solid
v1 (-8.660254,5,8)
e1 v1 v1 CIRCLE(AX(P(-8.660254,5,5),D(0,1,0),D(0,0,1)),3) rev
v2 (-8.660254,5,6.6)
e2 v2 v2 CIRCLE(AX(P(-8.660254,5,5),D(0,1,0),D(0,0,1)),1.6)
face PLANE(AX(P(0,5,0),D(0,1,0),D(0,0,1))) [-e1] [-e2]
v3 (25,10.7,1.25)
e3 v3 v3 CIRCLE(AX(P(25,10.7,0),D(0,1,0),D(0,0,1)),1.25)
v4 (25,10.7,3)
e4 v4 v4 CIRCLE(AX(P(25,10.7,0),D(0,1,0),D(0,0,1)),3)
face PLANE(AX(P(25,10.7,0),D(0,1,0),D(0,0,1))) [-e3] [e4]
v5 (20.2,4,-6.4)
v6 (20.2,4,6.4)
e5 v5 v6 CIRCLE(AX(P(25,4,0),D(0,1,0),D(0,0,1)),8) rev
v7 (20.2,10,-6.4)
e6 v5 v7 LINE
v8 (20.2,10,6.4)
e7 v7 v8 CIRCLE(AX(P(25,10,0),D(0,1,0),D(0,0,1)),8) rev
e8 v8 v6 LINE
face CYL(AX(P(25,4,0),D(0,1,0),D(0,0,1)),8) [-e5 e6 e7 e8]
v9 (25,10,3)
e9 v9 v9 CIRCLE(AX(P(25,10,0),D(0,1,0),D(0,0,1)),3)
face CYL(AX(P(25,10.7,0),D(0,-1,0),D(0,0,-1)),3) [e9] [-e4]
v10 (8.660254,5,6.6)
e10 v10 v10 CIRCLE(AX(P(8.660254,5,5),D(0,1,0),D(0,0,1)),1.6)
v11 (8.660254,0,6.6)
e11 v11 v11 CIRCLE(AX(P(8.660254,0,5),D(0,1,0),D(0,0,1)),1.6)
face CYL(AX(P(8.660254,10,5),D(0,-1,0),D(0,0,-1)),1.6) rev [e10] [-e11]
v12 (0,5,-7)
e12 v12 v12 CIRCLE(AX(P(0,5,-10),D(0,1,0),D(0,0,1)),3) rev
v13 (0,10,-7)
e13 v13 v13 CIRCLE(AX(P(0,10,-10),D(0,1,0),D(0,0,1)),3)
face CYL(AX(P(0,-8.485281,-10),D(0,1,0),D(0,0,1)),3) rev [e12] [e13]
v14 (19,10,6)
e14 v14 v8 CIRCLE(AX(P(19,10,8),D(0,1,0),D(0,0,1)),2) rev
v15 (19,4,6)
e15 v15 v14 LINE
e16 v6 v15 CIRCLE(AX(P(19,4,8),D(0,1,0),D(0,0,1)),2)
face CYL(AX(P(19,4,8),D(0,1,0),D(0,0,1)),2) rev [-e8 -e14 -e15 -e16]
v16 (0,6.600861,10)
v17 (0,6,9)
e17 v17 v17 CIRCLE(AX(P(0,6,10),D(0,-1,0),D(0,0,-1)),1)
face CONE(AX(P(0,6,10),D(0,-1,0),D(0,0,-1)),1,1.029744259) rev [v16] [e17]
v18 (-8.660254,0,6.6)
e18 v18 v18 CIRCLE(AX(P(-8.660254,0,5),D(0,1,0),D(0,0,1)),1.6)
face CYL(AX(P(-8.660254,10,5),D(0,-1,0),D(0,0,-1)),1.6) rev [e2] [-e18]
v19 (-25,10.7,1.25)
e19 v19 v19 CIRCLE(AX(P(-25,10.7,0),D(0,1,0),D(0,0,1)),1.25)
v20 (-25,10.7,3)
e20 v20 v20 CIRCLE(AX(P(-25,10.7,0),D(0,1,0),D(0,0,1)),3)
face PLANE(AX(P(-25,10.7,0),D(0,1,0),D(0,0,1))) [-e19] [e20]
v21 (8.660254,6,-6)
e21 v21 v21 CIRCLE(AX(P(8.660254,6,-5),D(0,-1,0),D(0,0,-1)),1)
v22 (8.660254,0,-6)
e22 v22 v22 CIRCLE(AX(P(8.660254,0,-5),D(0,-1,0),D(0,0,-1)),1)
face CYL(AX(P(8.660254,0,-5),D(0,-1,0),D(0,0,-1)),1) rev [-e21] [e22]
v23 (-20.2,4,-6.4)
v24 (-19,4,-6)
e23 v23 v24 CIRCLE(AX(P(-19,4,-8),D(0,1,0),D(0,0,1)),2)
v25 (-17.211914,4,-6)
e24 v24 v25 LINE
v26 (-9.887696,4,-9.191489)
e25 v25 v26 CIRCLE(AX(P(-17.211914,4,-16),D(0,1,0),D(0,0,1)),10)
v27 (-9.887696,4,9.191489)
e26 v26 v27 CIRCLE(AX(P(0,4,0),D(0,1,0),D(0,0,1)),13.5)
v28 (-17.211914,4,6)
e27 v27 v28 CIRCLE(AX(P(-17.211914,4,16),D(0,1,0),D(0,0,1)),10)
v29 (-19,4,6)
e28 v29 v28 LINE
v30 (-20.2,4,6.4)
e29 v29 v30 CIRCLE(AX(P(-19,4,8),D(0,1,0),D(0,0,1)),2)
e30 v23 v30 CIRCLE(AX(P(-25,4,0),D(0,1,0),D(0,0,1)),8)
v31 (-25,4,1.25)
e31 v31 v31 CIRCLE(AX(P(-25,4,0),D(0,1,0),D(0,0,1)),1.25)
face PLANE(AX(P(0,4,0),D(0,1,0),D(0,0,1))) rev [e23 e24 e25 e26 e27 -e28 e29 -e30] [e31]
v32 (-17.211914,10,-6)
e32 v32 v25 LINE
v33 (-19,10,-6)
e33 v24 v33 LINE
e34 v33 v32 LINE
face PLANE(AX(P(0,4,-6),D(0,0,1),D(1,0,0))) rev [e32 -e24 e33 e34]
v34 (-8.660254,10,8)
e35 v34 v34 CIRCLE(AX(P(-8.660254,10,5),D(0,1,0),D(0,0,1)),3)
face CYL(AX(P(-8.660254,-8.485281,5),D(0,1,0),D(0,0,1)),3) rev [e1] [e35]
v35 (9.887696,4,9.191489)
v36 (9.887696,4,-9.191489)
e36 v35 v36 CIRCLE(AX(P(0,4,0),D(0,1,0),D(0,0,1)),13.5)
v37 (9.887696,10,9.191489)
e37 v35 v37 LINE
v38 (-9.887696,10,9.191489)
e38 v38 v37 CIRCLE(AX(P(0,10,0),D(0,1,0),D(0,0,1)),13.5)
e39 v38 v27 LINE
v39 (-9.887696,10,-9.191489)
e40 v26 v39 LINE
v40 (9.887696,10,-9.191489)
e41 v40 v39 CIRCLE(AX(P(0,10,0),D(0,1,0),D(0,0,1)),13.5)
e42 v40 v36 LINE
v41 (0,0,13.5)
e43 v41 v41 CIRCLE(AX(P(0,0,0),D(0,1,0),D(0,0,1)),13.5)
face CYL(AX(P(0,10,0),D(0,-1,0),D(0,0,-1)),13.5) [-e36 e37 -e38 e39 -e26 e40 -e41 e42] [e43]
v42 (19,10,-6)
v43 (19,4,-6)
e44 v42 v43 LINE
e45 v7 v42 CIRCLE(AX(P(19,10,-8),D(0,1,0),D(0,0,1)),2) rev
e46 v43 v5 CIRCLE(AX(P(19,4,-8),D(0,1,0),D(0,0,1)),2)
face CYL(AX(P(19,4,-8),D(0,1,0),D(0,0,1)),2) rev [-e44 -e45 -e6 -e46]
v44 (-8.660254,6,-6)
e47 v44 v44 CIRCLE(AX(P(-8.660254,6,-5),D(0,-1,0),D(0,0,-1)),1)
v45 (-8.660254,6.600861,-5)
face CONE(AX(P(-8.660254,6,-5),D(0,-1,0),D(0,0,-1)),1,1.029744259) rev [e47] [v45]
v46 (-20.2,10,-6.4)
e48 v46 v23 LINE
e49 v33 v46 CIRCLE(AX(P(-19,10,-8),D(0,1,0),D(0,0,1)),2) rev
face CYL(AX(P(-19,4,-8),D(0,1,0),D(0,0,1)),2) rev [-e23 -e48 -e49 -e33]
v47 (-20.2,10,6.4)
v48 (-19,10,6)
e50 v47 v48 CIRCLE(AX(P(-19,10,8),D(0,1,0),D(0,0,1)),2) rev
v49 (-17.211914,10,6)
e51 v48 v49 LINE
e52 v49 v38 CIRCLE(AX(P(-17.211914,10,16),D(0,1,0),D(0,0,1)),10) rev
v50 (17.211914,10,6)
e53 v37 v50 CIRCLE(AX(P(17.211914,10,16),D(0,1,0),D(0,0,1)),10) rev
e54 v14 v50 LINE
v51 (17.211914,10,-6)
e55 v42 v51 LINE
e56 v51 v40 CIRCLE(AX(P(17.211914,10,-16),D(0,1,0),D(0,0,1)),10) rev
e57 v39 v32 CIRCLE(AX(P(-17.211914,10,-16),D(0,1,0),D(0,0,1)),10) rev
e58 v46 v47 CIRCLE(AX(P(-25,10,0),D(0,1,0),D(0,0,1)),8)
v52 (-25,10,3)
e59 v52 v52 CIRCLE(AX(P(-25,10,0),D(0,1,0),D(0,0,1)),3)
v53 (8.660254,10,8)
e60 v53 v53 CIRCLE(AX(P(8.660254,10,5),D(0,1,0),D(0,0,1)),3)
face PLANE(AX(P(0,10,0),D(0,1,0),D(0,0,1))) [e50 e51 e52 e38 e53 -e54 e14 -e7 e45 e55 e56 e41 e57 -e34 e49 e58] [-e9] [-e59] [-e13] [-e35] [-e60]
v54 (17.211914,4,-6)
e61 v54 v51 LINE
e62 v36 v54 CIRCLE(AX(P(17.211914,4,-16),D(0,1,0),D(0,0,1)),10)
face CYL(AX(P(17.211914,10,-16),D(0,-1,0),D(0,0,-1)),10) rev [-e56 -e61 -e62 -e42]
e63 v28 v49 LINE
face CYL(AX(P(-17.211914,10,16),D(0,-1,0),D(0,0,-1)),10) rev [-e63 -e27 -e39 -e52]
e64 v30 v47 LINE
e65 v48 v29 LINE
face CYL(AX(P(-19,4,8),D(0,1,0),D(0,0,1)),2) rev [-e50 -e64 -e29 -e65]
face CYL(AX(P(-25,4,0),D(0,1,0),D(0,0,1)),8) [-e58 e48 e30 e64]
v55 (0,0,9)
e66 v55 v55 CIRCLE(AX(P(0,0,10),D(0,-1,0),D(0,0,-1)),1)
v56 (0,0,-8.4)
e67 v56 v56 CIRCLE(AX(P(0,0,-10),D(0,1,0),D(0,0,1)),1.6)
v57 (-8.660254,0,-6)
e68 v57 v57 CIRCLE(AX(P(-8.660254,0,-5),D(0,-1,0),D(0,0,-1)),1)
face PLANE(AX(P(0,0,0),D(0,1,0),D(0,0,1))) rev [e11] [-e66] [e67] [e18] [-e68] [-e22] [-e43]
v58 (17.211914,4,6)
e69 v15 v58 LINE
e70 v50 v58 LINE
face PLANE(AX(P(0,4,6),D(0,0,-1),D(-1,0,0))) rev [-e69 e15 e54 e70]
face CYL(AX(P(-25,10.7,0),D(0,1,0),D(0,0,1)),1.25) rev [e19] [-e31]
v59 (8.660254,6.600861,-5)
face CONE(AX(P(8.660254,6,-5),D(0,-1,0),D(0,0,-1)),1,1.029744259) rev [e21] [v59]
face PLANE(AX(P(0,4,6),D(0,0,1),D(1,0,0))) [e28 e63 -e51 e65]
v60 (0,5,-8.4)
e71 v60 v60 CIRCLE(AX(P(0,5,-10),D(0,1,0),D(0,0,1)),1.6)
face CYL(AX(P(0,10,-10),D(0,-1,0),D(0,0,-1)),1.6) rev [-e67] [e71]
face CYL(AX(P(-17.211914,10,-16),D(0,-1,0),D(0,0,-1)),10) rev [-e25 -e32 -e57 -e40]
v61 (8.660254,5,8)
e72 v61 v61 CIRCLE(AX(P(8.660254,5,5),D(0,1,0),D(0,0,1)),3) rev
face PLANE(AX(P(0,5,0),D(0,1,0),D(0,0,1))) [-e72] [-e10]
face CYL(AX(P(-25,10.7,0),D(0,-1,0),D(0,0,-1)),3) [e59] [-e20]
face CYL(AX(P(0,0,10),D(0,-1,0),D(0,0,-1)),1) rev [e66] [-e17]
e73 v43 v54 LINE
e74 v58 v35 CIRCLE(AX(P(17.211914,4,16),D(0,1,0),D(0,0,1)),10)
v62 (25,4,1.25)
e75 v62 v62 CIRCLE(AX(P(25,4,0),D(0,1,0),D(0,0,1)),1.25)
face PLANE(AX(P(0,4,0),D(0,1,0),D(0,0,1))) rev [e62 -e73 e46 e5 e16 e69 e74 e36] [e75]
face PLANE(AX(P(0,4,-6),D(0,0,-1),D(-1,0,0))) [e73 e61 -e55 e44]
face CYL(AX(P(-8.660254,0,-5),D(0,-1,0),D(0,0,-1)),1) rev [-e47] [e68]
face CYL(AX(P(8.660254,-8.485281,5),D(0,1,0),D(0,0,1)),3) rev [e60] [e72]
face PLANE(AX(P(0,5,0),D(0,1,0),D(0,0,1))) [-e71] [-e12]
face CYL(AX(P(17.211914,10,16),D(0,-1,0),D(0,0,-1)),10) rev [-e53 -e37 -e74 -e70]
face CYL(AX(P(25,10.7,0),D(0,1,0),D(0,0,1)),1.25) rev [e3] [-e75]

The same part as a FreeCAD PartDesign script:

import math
import FreeCAD as App
import Part
import Sketcher

V = App.Vector


def edges_at(feature, points):
    """Names of the edges that pass closest to the given points."""
    edges = feature.Shape.Edges
    near = lambda p: min(range(len(edges)), key=lambda i: edges[i].distToShape(Part.Vertex(*p))[0])
    return sorted({f"Edge{near(p) + 1}" for p in points})

doc = App.newDocument("Part")
body = doc.addObject("PartDesign::Body", "Body")

sketch1 = doc.addObject("Sketcher::SketchObject", "Sketch")
body.addObject(sketch1)
sketch1.AttachmentSupport = (doc.XZ_Plane, [""])
sketch1.MapMode = "FlatFace"
sketch1.addGeometry([
    Part.Circle(V(0, 0, 0), V(0, 0, 1), 13.5),
    Part.Circle(V(0, -10, 0), V(0, 0, 1), 1.6),
    Part.Circle(V(-8.7, 5, 0), V(0, 0, 1), 1.6),
    Part.Circle(V(8.7, 5, 0), V(0, 0, 1), 1.6),
], False)
sketch1.addConstraint([
    Sketcher.Constraint("Coincident", 0, 3, -1, 1),
    Sketcher.Constraint("Equal", 1, 2),
    Sketcher.Constraint("Equal", 2, 3),
    Sketcher.Constraint("Symmetric", 2, 3, 3, 3, -2),
    Sketcher.Constraint("PointOnObject", 1, 3, -2),
    Sketcher.Constraint("Diameter", 0, 27.0),
    Sketcher.Constraint("Diameter", 1, 3.2),
    Sketcher.Constraint("DistanceY", 1, 3, -1, 1, 10.0),
    Sketcher.Constraint("DistanceY", -1, 1, 2, 3, 5.0),
    Sketcher.Constraint("DistanceX", 2, 3, 3, 3, 17.320508),
])
pad1 = doc.addObject("PartDesign::Pad", "Pad")
body.addObject(pad1)
pad1.Profile = sketch1
pad1.Length = 10
pad1.Reversed = True

sketch2 = doc.addObject("Sketcher::SketchObject", "Sketch001")
body.addObject(sketch2)
sketch2.AttachmentSupport = (doc.XZ_Plane, [""])
sketch2.MapMode = "FlatFace"
sketch2.AttachmentOffset = App.Placement(V(0, 0, -4), App.Rotation())
sketch2.addGeometry([
    Part.LineSegment(V(-12.1, -6, 0), V(-19.7, -6, 0)),
    Part.ArcOfCircle(Part.Circle(V(-25, 0, 0), V(0, 0, 1), 8), math.radians(49), math.radians(311)),
    Part.LineSegment(V(-19.7, 6, 0), V(-12.1, 6, 0)),
    Part.ArcOfCircle(Part.Circle(V(0, 0, 0), V(0, 0, 1), 13.5), math.radians(154), math.radians(206)),
    Part.Circle(V(-25, 0, 0), V(0, 0, 1), 1),
    Part.ArcOfCircle(Part.Circle(V(0, 0, 0), V(0, 0, 1), 13.5), math.radians(0), math.radians(26)),
    Part.LineSegment(V(12.1, 6, 0), V(19.7, 6, 0)),
    Part.ArcOfCircle(Part.Circle(V(25, 0, 0), V(0, 0, 1), 8), math.radians(-131), math.radians(131)),
    Part.LineSegment(V(19.7, -6, 0), V(12.1, -6, 0)),
    Part.ArcOfCircle(Part.Circle(V(0, 0, 0), V(0, 0, 1), 13.5), math.radians(-26), math.radians(0)),
    Part.Circle(V(25, 0, 0), V(0, 0, 1), 1),
], False)
sketch2.addConstraint([
    Sketcher.Constraint("Coincident", 0, 2, 1, 2),
    Sketcher.Constraint("Coincident", 1, 1, 2, 1),
    Sketcher.Constraint("Coincident", 2, 2, 3, 1),
    Sketcher.Constraint("Coincident", 3, 2, 0, 1),
    Sketcher.Constraint("Coincident", 5, 2, 6, 1),
    Sketcher.Constraint("Coincident", 6, 2, 7, 2),
    Sketcher.Constraint("Coincident", 7, 1, 8, 1),
    Sketcher.Constraint("Coincident", 8, 2, 9, 1),
    Sketcher.Constraint("Tangent", 9, 2, 5, 1),
    Sketcher.Constraint("Horizontal", 0),
    Sketcher.Constraint("Horizontal", 2),
    Sketcher.Constraint("Horizontal", 6),
    Sketcher.Constraint("Horizontal", 8),
    Sketcher.Constraint("Coincident", 3, 3, -1, 1),
    Sketcher.Constraint("Coincident", 5, 3, -1, 1),
    Sketcher.Constraint("Coincident", 4, 3, 1, 3),
    Sketcher.Constraint("Coincident", 10, 3, 7, 3),
    Sketcher.Constraint("Equal", 3, 5),
    Sketcher.Constraint("Equal", 1, 7),
    Sketcher.Constraint("Equal", 5, 9),
    Sketcher.Constraint("Equal", 4, 10),
    Sketcher.Constraint("Symmetric", 1, 3, 7, 3, -1, 1),
    Sketcher.Constraint("Symmetric", 1, 1, 6, 2, -2),
    Sketcher.Constraint("PointOnObject", 9, 2, -1),
    Sketcher.Constraint("Horizontal", 3, 2, 7, 1),
    Sketcher.Constraint("Vertical", 0, 2, 1, 1),
    Sketcher.Constraint("Diameter", 4, 2.0),
    Sketcher.Constraint("Radius", 1, 8.0),
    Sketcher.Constraint("Radius", 3, 13.5),
    Sketcher.Constraint("DistanceX", 1, 3, -1, 1, 25.0),
    Sketcher.Constraint("DistanceY", 0, 2, -1, 1, 6.0),
])
pad2 = doc.addObject("PartDesign::Pad", "Pad001")
body.addObject(pad2)
pad2.Profile = sketch2
pad2.Length = 6
pad2.Reversed = True

sketch3 = doc.addObject("Sketcher::SketchObject", "Sketch002")
body.addObject(sketch3)
sketch3.AttachmentSupport = (doc.XZ_Plane, [""])
sketch3.MapMode = "FlatFace"
sketch3.AttachmentOffset = App.Placement(V(0, 0, -10), App.Rotation())
sketch3.addGeometry([
    Part.Circle(V(0, -10, 0), V(0, 0, 1), 3),
    Part.Circle(V(8.7, 5, 0), V(0, 0, 1), 3),
    Part.Circle(V(-8.7, 5, 0), V(0, 0, 1), 3),
], False)
sketch3.addConstraint([
    Sketcher.Constraint("Equal", 0, 1),
    Sketcher.Constraint("Equal", 1, 2),
    Sketcher.Constraint("Symmetric", 1, 3, 2, 3, -2),
    Sketcher.Constraint("PointOnObject", 0, 3, -2),
    Sketcher.Constraint("Diameter", 0, 6.0),
    Sketcher.Constraint("DistanceY", 0, 3, -1, 1, 10.0),
    Sketcher.Constraint("DistanceY", -1, 1, 1, 3, 5.0),
    Sketcher.Constraint("DistanceX", 2, 3, 1, 3, 17.320508),
])
pocket1 = doc.addObject("PartDesign::Pocket", "Pocket")
body.addObject(pocket1)
pocket1.Profile = sketch3
pocket1.Length = 5
pocket1.Reversed = True

sketch4 = doc.addObject("Sketcher::SketchObject", "Sketch003")
body.addObject(sketch4)
sketch4.AttachmentSupport = (doc.XZ_Plane, [""])
sketch4.MapMode = "FlatFace"
sketch4.AttachmentOffset = App.Placement(V(0, 0, -10), App.Rotation())
sketch4.addGeometry([
    Part.Circle(V(-25, 0, 0), V(0, 0, 1), 3),
    Part.Circle(V(-25, 0, 0), V(0, 0, 1), 1),
    Part.Circle(V(25, 0, 0), V(0, 0, 1), 3),
    Part.Circle(V(25, 0, 0), V(0, 0, 1), 1),
], False)
sketch4.addConstraint([
    Sketcher.Constraint("Coincident", 1, 3, 0, 3),
    Sketcher.Constraint("Coincident", 3, 3, 2, 3),
    Sketcher.Constraint("Equal", 0, 2),
    Sketcher.Constraint("Equal", 1, 3),
    Sketcher.Constraint("Symmetric", 0, 3, 2, 3, -1, 1),
    Sketcher.Constraint("PointOnObject", 0, 3, -1),
    Sketcher.Constraint("Diameter", 0, 6.0),
    Sketcher.Constraint("Diameter", 1, 2.0),
    Sketcher.Constraint("DistanceX", 0, 3, -1, 1, 25.0),
])
pad3 = doc.addObject("PartDesign::Pad", "Pad002")
body.addObject(pad3)
pad3.Profile = sketch4
pad3.Length = 0.7
pad3.Reversed = True
doc.recompute()

fillet = doc.addObject("PartDesign::Fillet", "Fillet")
body.addObject(fillet)
fillet.Base = (pad3, edges_at(pad3, [
    (-12.093, 7, -6),
    (-12.093, 7, 6),
    (12.093, 7, 6),
    (12.093, 7, -6),
]))
fillet.Radius = 10
doc.recompute()

fillet2 = doc.addObject("PartDesign::Fillet", "Fillet001")
body.addObject(fillet2)
fillet2.Base = (fillet, edges_at(fillet, [
    (-19.708, 7, -6),
    (-19.708, 7, 6),
    (19.708, 7, -6),
    (19.708, 7, 6),
]))
fillet2.Radius = 2

sketch5 = doc.addObject("Sketcher::SketchObject", "Sketch004")
body.addObject(sketch5)
sketch5.AttachmentSupport = (doc.XZ_Plane, [""])
sketch5.MapMode = "FlatFace"
sketch5.AttachmentOffset = App.Placement(V(0, 0, -10.7), App.Rotation())
sketch5.addGeometry([
    Part.Circle(V(-25, 0, 0), V(0, 0, 1), 1.2),
    Part.Circle(V(25, 0, 0), V(0, 0, 1), 1.2),
], False)
sketch5.addConstraint([
    Sketcher.Constraint("Equal", 0, 1),
    Sketcher.Constraint("Symmetric", 0, 3, 1, 3, -1, 1),
    Sketcher.Constraint("PointOnObject", 0, 3, -1),
    Sketcher.Constraint("Diameter", 0, 2.5),
    Sketcher.Constraint("DistanceX", 0, 3, -1, 1, 25.0),
])
doc.recompute()
hole = doc.addObject("PartDesign::Hole", "Hole")
body.addObject(hole)
hole.Profile = sketch5
hole.ThreadType = "None"
hole.Diameter = 2.5
hole.DepthType = "ThroughAll"
hole.Reversed = True

sketch6 = doc.addObject("Sketcher::SketchObject", "Sketch005")
body.addObject(sketch6)
sketch6.AttachmentSupport = (doc.XZ_Plane, [""])
sketch6.MapMode = "FlatFace"
sketch6.addGeometry([
    Part.Circle(V(-8.7, -5, 0), V(0, 0, 1), 1),
    Part.Circle(V(0, 10, 0), V(0, 0, 1), 1),
    Part.Circle(V(8.7, -5, 0), V(0, 0, 1), 1),
], False)
sketch6.addConstraint([
    Sketcher.Constraint("Equal", 0, 1),
    Sketcher.Constraint("Equal", 1, 2),
    Sketcher.Constraint("Symmetric", 0, 3, 2, 3, -2),
    Sketcher.Constraint("PointOnObject", 1, 3, -2),
    Sketcher.Constraint("Diameter", 0, 2.0),
    Sketcher.Constraint("DistanceY", 0, 3, -1, 1, 5.0),
    Sketcher.Constraint("DistanceY", -1, 1, 1, 3, 10.0),
    Sketcher.Constraint("DistanceX", 0, 3, 2, 3, 17.320508),
])
doc.recompute()
hole2 = doc.addObject("PartDesign::Hole", "Hole001")
body.addObject(hole2)
hole2.Profile = sketch6
hole2.ThreadType = "None"
hole2.Diameter = 2
hole2.DepthType = "Dimension"
hole2.Depth = 6
hole2.DrillPoint = "Angled"
hole2.DrillPointAngle = 118

doc.recompute()
